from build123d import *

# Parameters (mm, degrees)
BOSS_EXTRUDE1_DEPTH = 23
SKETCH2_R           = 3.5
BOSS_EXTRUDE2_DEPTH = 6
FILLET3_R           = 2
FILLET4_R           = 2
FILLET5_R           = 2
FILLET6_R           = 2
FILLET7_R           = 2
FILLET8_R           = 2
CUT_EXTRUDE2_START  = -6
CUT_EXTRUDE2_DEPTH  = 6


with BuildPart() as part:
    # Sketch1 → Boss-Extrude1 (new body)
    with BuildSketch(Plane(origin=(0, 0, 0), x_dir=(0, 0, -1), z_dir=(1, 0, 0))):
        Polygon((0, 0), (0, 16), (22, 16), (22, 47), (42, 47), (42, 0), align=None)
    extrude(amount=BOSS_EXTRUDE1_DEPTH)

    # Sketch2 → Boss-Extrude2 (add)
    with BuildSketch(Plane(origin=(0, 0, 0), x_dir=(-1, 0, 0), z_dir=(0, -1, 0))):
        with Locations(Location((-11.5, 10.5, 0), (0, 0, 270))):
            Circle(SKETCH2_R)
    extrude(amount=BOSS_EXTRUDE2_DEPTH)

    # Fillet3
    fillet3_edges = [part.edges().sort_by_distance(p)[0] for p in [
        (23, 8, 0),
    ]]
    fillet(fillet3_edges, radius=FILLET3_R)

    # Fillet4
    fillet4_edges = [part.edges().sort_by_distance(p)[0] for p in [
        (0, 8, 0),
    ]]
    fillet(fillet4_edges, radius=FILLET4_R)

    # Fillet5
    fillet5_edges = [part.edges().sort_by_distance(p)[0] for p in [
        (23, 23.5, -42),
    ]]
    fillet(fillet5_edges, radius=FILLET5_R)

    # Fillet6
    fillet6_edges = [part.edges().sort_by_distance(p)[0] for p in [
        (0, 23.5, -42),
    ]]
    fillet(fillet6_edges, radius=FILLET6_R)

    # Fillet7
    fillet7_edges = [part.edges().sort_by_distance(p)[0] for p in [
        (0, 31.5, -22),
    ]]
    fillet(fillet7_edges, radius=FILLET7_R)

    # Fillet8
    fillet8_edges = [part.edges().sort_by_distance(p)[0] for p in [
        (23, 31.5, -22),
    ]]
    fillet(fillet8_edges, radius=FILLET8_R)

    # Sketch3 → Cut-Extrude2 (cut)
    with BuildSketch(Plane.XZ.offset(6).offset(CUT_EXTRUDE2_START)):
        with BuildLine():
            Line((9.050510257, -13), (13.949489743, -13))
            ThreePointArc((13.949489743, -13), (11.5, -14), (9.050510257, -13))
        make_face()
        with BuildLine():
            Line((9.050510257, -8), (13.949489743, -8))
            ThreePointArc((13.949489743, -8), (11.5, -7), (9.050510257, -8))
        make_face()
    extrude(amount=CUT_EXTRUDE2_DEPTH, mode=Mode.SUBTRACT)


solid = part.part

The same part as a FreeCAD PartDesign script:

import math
import FreeCAD as App
import Part
import Sketcher


def edges_at(feature, points):
    """Names of the edges that pass closest to the given points."""
    edges = feature.Shape.Edges
    near = lambda p: min(range(len(edges)), key=lambda i: edges[i].distToShape(Part.Vertex(*p))[0])
    return sorted({f"Edge{near(p) + 1}" for p in points})

doc = App.newDocument("Part")
body = doc.addObject("PartDesign::Body", "Body")

# Sketch on YZ plane
sketch1 = body.newObject("Sketcher::SketchObject", "Sketch")
sketch1.AttachmentSupport = (doc.getObject("YZ_Plane"), [""])
sketch1.MapMode = "FlatFace"
sketch1.addGeometry(Part.LineSegment(App.Vector(16, 0, 0), App.Vector(0, 0, 0)), False)
sketch1.addGeometry(Part.LineSegment(App.Vector(0, 0, 0), App.Vector(0, -42, 0)), False)
sketch1.addGeometry(Part.LineSegment(App.Vector(0, -42, 0), App.Vector(47, -42, 0)), False)
sketch1.addGeometry(Part.LineSegment(App.Vector(47, -42, 0), App.Vector(47, -22, 0)), False)
sketch1.addGeometry(Part.LineSegment(App.Vector(47, -22, 0), App.Vector(16, -22, 0)), False)
sketch1.addGeometry(Part.LineSegment(App.Vector(16, -22, 0), App.Vector(16, 0, 0)), False)
sketch1.addConstraint(Sketcher.Constraint("Coincident", 0, 2, 1, 1))
sketch1.addConstraint(Sketcher.Constraint("Coincident", 1, 2, 2, 1))
sketch1.addConstraint(Sketcher.Constraint("Coincident", 2, 2, 3, 1))
sketch1.addConstraint(Sketcher.Constraint("Coincident", 3, 2, 4, 1))
sketch1.addConstraint(Sketcher.Constraint("Coincident", 4, 2, 5, 1))
sketch1.addConstraint(Sketcher.Constraint("Coincident", 5, 2, 0, 1))
sketch1.addConstraint(Sketcher.Constraint("Horizontal", 0))
sketch1.addConstraint(Sketcher.Constraint("Vertical", 1))
sketch1.addConstraint(Sketcher.Constraint("Horizontal", 2))
sketch1.addConstraint(Sketcher.Constraint("Vertical", 3))
sketch1.addConstraint(Sketcher.Constraint("Horizontal", 4))
sketch1.addConstraint(Sketcher.Constraint("Vertical", 5))
sketch1.addConstraint(Sketcher.Constraint("Coincident", 0, 2, -1, 1))
sketch1.addConstraint(Sketcher.Constraint("DistanceX", 0, 2, 0, 1, 16.0))
sketch1.addConstraint(Sketcher.Constraint("DistanceX", 2, 1, 2, 2, 47.0))
sketch1.addConstraint(Sketcher.Constraint("DistanceY", 1, 2, 1, 1, 42.0))
sketch1.addConstraint(Sketcher.Constraint("DistanceY", 3, 1, 3, 2, 20.0))
pad1 = body.newObject("PartDesign::Pad", "Pad")
pad1.Profile = sketch1
pad1.Length = 23

# Sketch on XZ plane
sketch2 = body.newObject("Sketcher::SketchObject", "Sketch001")
sketch2.AttachmentSupport = (doc.getObject("XZ_Plane"), [""])
sketch2.MapMode = "FlatFace"
sketch2.addGeometry(Part.Circle(App.Vector(11.5, -10.5, 0), App.Vector(0, 0, 1), 3.5), False)
sketch2.addConstraint(Sketcher.Constraint("Diameter", 0, 7.0))
sketch2.addConstraint(Sketcher.Constraint("DistanceX", -1, 1, 0, 3, 11.5))
sketch2.addConstraint(Sketcher.Constraint("DistanceY", 0, 3, -1, 1, 10.5))
pad2 = body.newObject("PartDesign::Pad", "Pad001")
pad2.Profile = sketch2
pad2.Length = 6
doc.recompute()

fillet = body.newObject("PartDesign::Fillet", "Fillet")
fillet.Base = (pad2, edges_at(pad2, [(23, 8, 0)]))
fillet.Radius = 2
doc.recompute()

fillet2 = body.newObject("PartDesign::Fillet", "Fillet001")
fillet2.Base = (fillet, edges_at(fillet, [(0, 8, 0)]))
fillet2.Radius = 2
doc.recompute()

fillet3 = body.newObject("PartDesign::Fillet", "Fillet002")
fillet3.Base = (fillet2, edges_at(fillet2, [(23, 23.5, -42)]))
fillet3.Radius = 2
doc.recompute()

fillet4 = body.newObject("PartDesign::Fillet", "Fillet003")
fillet4.Base = (fillet3, edges_at(fillet3, [(0, 23.5, -42)]))
fillet4.Radius = 2
doc.recompute()

fillet5 = body.newObject("PartDesign::Fillet", "Fillet004")
fillet5.Base = (fillet4, edges_at(fillet4, [(0, 31.5, -22)]))
fillet5.Radius = 2
doc.recompute()

fillet6 = body.newObject("PartDesign::Fillet", "Fillet005")
fillet6.Base = (fillet5, edges_at(fillet5, [(23, 31.5, -22)]))
fillet6.Radius = 2

# Sketch on XZ plane
sketch3 = body.newObject("Sketcher::SketchObject", "Sketch002")
sketch3.AttachmentSupport = (doc.getObject("XZ_Plane"), [""])
sketch3.MapMode = "FlatFace"
sketch3.addGeometry(Part.LineSegment(App.Vector(13.9, -13, 0), App.Vector(9.1, -13, 0)), False)
sketch3.addGeometry(Part.ArcOfCircle(Part.Circle(App.Vector(11.5, -10.5, 0), App.Vector(0, 0, 1), 3.5), math.radians(-134), math.radians(-46)), False)
sketch3.addGeometry(Part.LineSegment(App.Vector(9.1, -8, 0), App.Vector(13.9, -8, 0)), False)
sketch3.addGeometry(Part.ArcOfCircle(Part.Circle(App.Vector(11.5, -10.5, 0), App.Vector(0, 0, 1), 3.5), math.radians(46), math.radians(134)), False)
sketch3.addConstraint(Sketcher.Constraint("Coincident", 0, 1, 1, 2))
sketch3.addConstraint(Sketcher.Constraint("Coincident", 1, 1, 0, 2))
sketch3.addConstraint(Sketcher.Constraint("Coincident", 2, 1, 3, 2))
sketch3.addConstraint(Sketcher.Constraint("Coincident", 3, 1, 2, 2))
sketch3.addConstraint(Sketcher.Constraint("Horizontal", 0))
sketch3.addConstraint(Sketcher.Constraint("Horizontal", 2))
sketch3.addConstraint(Sketcher.Constraint("Coincident", 3, 3, 1, 3))
sketch3.addConstraint(Sketcher.Constraint("Equal", 1, 3))
sketch3.addConstraint(Sketcher.Constraint("Vertical", 1, 1, 2, 1))
sketch3.addConstraint(Sketcher.Constraint("Radius", 1, 3.5))
sketch3.addConstraint(Sketcher.Constraint("DistanceY", 0, 1, -1, 1, 13.0))
sketch3.addConstraint(Sketcher.Constraint("DistanceY", 2, 1, -1, 1, 8.0))
sketch3.addConstraint(Sketcher.Constraint("DistanceX", -1, 1, 1, 3, 11.5))
pocket1 = body.newObject("PartDesign::Pocket", "Pocket")
pocket1.Profile = sketch3
pocket1.Length = 6
pocket1.Reversed = True

doc.recompute()
